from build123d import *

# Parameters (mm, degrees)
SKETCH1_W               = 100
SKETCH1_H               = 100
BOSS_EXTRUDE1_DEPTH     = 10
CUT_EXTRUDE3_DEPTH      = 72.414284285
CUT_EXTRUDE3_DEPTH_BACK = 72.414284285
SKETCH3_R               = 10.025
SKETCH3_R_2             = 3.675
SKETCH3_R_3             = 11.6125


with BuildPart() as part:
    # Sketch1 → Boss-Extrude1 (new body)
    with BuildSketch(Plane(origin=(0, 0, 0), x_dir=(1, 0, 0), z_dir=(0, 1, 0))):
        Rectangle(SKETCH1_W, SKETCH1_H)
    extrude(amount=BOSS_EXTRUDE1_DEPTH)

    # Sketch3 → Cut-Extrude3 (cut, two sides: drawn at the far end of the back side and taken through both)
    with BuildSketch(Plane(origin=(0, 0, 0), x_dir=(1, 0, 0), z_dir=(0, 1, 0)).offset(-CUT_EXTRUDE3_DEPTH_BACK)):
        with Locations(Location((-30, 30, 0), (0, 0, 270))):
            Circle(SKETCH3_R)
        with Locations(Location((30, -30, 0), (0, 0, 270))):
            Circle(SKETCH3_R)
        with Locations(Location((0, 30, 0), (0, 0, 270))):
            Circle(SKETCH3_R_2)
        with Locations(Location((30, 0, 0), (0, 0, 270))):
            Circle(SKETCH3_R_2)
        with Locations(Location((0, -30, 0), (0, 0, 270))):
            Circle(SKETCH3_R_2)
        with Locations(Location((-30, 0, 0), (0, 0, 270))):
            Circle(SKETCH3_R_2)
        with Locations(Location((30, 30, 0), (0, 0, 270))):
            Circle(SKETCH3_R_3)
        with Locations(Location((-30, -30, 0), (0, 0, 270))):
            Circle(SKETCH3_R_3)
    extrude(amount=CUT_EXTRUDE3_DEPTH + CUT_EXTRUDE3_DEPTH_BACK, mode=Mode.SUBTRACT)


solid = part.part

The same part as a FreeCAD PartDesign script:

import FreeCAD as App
import Part
import Sketcher


def add_polygon(sketch, points):
    """Adds a closed chain of lines whose ends are joined by coincident constraints."""
    first, n = sketch.GeometryCount, len(points)
    for a, b in zip(points, points[1:] + points[:1]):
        sketch.addGeometry(Part.LineSegment(App.Vector(*a, 0), App.Vector(*b, 0)), False)
    for i in range(n):
        sketch.addConstraint(Sketcher.Constraint("Coincident", first + i, 2, first + (i + 1) % n, 1))

doc = App.newDocument("Part")
body = doc.addObject("PartDesign::Body", "Body")

# Sketch on XZ plane
sketch1 = body.newObject("Sketcher::SketchObject", "Sketch")
sketch1.AttachmentSupport = (doc.getObject("XZ_Plane"), [""])
sketch1.MapMode = "FlatFace"
add_polygon(sketch1, [(-50, -50), (-50, 50), (50, 50), (50, -50)])  # lines 0-3
sketch1.addConstraint(Sketcher.Constraint("Vertical", 0))
sketch1.addConstraint(Sketcher.Constraint("Horizontal", 1))
sketch1.addConstraint(Sketcher.Constraint("Vertical", 2))
sketch1.addConstraint(Sketcher.Constraint("Horizontal", 3))
sketch1.addConstraint(Sketcher.Constraint("Symmetric", 0, 2, 2, 2, -1, 1))
sketch1.addConstraint(Sketcher.Constraint("Equal", 3, 0))
sketch1.addConstraint(Sketcher.Constraint("DistanceX", 1, 1, 1, 2, 100.0))
pad1 = body.newObject("PartDesign::Pad", "Pad")
pad1.Profile = sketch1
pad1.Length = 10
pad1.Reversed = True

# Sketch on XZ plane
sketch2 = body.newObject("Sketcher::SketchObject", "Sketch001")
sketch2.AttachmentSupport = (doc.getObject("XZ_Plane"), [""])
sketch2.MapMode = "FlatFace"
sketch2.addGeometry(Part.Circle(App.Vector(-30, -30, 0), App.Vector(0, 0, 1), 10), False)
sketch2.addGeometry(Part.Circle(App.Vector(30, 30, 0), App.Vector(0, 0, 1), 10), False)
sketch2.addGeometry(Part.Circle(App.Vector(0, -30, 0), App.Vector(0, 0, 1), 3.7), False)
sketch2.addGeometry(Part.Circle(App.Vector(30, 0, 0), App.Vector(0, 0, 1), 3.7), False)
sketch2.addGeometry(Part.Circle(App.Vector(0, 30, 0), App.Vector(0, 0, 1), 3.7), False)
sketch2.addGeometry(Part.Circle(App.Vector(-30, 0, 0), App.Vector(0, 0, 1), 3.7), False)
sketch2.addGeometry(Part.Circle(App.Vector(30, -30, 0), App.Vector(0, 0, 1), 11.6), False)
sketch2.addGeometry(Part.Circle(App.Vector(-30, 30, 0), App.Vector(0, 0, 1), 11.6), False)
sketch2.addConstraint(Sketcher.Constraint("Equal", 0, 1))
sketch2.addConstraint(Sketcher.Constraint("Equal", 2, 3))
sketch2.addConstraint(Sketcher.Constraint("Equal", 3, 4))
sketch2.addConstraint(Sketcher.Constraint("Equal", 4, 5))
sketch2.addConstraint(Sketcher.Constraint("Equal", 6, 7))
sketch2.addConstraint(Sketcher.Constraint("Symmetric", 0, 3, 1, 3, -1, 1))
sketch2.addConstraint(Sketcher.Constraint("Symmetric", 2, 3, 4, 3, -1, 1))
sketch2.addConstraint(Sketcher.Constraint("Symmetric", 3, 3, 5, 3, -1, 1))
sketch2.addConstraint(Sketcher.Constraint("Symmetric", 6, 3, 7, 3, -1, 1))
sketch2.addConstraint(Sketcher.Constraint("Symmetric", 0, 3, 6, 3, -2))
sketch2.addConstraint(Sketcher.Constraint("PointOnObject", 2, 3, -2))
sketch2.addConstraint(Sketcher.Constraint("PointOnObject", 3, 3, -1))
sketch2.addConstraint(Sketcher.Constraint("Horizontal", 0, 3, 2, 3))
sketch2.addConstraint(Sketcher.Constraint("Vertical", 1, 3, 3, 3))
sketch2.addConstraint(Sketcher.Constraint("Diameter", 0, 20.05))
sketch2.addConstraint(Sketcher.Constraint("Diameter", 2, 7.35))
sketch2.addConstraint(Sketcher.Constraint("Diameter", 6, 23.225))
sketch2.addConstraint(Sketcher.Constraint("DistanceX", 0, 3, -1, 1, 30.0))
sketch2.addConstraint(Sketcher.Constraint("DistanceY", 0, 3, -1, 1, 30.0))
pocket1 = body.newObject("PartDesign::Pocket", "Pocket")
pocket1.Profile = sketch2
pocket1.Type = "ThroughAll"
pocket1.Midplane = True

doc.recompute()
